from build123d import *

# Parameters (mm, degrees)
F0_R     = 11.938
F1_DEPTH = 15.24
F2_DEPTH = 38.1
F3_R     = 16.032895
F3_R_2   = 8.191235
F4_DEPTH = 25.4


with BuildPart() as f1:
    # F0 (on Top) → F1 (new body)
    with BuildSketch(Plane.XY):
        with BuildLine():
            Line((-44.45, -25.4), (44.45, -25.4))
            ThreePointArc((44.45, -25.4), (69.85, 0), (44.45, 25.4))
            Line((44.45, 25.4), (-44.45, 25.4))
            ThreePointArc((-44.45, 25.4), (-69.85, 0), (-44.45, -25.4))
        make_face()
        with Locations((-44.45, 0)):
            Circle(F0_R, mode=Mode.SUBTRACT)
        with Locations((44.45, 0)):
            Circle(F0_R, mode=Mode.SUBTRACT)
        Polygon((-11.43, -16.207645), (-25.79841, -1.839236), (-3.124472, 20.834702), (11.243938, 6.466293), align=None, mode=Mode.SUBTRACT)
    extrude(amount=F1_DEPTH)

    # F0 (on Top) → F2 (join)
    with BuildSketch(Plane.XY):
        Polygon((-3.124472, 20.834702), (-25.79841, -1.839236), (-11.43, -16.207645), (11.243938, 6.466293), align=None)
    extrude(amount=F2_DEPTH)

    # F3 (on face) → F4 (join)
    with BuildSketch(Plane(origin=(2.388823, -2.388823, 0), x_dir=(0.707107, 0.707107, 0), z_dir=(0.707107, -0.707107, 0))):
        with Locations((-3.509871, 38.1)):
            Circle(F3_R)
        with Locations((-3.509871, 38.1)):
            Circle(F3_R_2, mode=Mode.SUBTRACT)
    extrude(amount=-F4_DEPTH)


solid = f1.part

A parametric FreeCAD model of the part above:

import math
import FreeCAD as App
import Part
import Sketcher
from FreeCAD import Vector
Q = App.Units.Quantity

doc = App.newDocument("Part")
body = doc.addObject("PartDesign::Body", "Body")

# Sketch on XY plane
sketch1 = body.newObject("Sketcher::SketchObject", "Sketch")
sketch1.AttachmentSupport = (doc.getObject("XY_Plane"), [""])
sketch1.MapMode = "FlatFace"
sketch1.addGeometry([
    Part.LineSegment(Vector(-44, -25, 0), Vector(44, -25, 0)),  # 0
    Part.ArcOfCircle(Part.Circle(Vector(44, 0, 0), Vector(0, 0, 1), 25), math.radians(-90), math.radians(90)),  # 1
    Part.LineSegment(Vector(44, 25, 0), Vector(-44, 25, 0)),  # 2
    Part.ArcOfCircle(Part.Circle(Vector(-44, 0, 0), Vector(0, 0, 1), 25), math.radians(90), math.radians(270)),  # 3
    Part.Circle(Vector(-44, 0, 0), Vector(0, 0, 1), 12),  # 4
    Part.Circle(Vector(44, 0, 0), Vector(0, 0, 1), 12),  # 5
    Part.LineSegment(Vector(11, 6, 0), Vector(-11, -16, 0)),  # 6
    Part.LineSegment(Vector(-11, -16, 0), Vector(-26, -2, 0)),  # 7
    Part.LineSegment(Vector(-26, -2, 0), Vector(-3, 21, 0)),  # 8
    Part.LineSegment(Vector(-3, 21, 0), Vector(11, 6, 0)),  # 9
], False)
sketch1.addConstraint([
    Sketcher.Constraint("Tangent", 0, 2, 1, 1),
    Sketcher.Constraint("Tangent", 1, 2, 2, 1),
    Sketcher.Constraint("Tangent", 2, 2, 3, 1),
    Sketcher.Constraint("Tangent", 3, 2, 0, 1),
    Sketcher.Constraint("Coincident", 6, 2, 7, 1),
    Sketcher.Constraint("Coincident", 7, 2, 8, 1),
    Sketcher.Constraint("Coincident", 8, 2, 9, 1),
    Sketcher.Constraint("Coincident", 9, 2, 6, 1),
    Sketcher.Constraint("Horizontal", 0),
    Sketcher.Constraint("Horizontal", 2),
    Sketcher.Constraint("Coincident", 4, 3, 3, 3),
    Sketcher.Constraint("Coincident", 5, 3, 1, 3),
    Sketcher.Constraint("Equal", 4, 5),
    Sketcher.Constraint("Symmetric", 1, 3, 3, 3, -1, 1),
    Sketcher.Constraint("Perpendicular", 6, 7),
    Sketcher.Constraint("Perpendicular", 7, 8),
    Sketcher.Constraint("Perpendicular", 8, 9),
    Sketcher.Constraint("Radius", 1, Q("1 in")),
    Sketcher.Constraint("Diameter", 4, Q("0.94 in")),
    Sketcher.Constraint("DistanceX", 0, 1, 0, 2, Q("3.5 in")),
    Sketcher.Constraint("Angle", 6, Q("-135 deg")),
    Sketcher.Constraint("Distance", 7, Q("0.8 in")),
    Sketcher.Constraint("DistanceX", 3, 2, 6, 2, Q("1.3 in")),
    Sketcher.Constraint("DistanceY", -1, 1, 8, 2, 20.834702),
    Sketcher.Constraint("Distance", 6, 32.065791),
])
pad1 = body.newObject("PartDesign::Pad", "Pad")
pad1.Profile = sketch1
pad1.Length = Q("0.6 in")

# Sketch on XY plane
sketch2 = body.newObject("Sketcher::SketchObject", "Sketch001")
sketch2.AttachmentSupport = (doc.getObject("XY_Plane"), [""])
sketch2.MapMode = "FlatFace"
sketch2.addGeometry([
    Part.LineSegment(Vector(-3, 21, 0), Vector(-26, -2, 0)),
    Part.LineSegment(Vector(-26, -2, 0), Vector(-11, -16, 0)),
    Part.LineSegment(Vector(-11, -16, 0), Vector(11, 6, 0)),
    Part.LineSegment(Vector(11, 6, 0), Vector(-3, 21, 0)),
], False)
sketch2.addConstraint([
    Sketcher.Constraint("Coincident", 0, 2, 1, 1),
    Sketcher.Constraint("Coincident", 1, 2, 2, 1),
    Sketcher.Constraint("Coincident", 2, 2, 3, 1),
    Sketcher.Constraint("Coincident", 3, 2, 0, 1),
    Sketcher.Constraint("Perpendicular", 0, 1),
    Sketcher.Constraint("Perpendicular", 1, 2),
    Sketcher.Constraint("Perpendicular", 2, 3),
    Sketcher.Constraint("Angle", 0, Q("-135 deg")),
    Sketcher.Constraint("Distance", 1, Q("0.8 in")),
    Sketcher.Constraint("DistanceX", 1, 2, -1, 1, Q("0.45 in")),
    Sketcher.Constraint("DistanceY", -1, 1, 3, 2, 20.834702),
    Sketcher.Constraint("Distance", 0, 32.065791),
])
pad2 = body.newObject("PartDesign::Pad", "Pad001")
pad2.Profile = sketch2
pad2.Length = Q("1.5 in")

# Sketch on an angled plane
sketch3 = body.newObject("Sketcher::SketchObject", "Sketch002")
sketch3.Placement = App.Placement(Vector(2.388823, -2.388823, 0), App.Rotation(Vector(0.707106781, 0.707106781, 0), Vector(0, 0, 0.999999999), Vector(0.707106781, -0.707106781, 0), "ZXY"))
sketch3.addGeometry([
    Part.Circle(Vector(-4, 38, 0), Vector(0, 0, 1), 16),
    Part.Circle(Vector(-4, 38, 0), Vector(0, 0, 1), 8),
], False)
sketch3.addConstraint([
    Sketcher.Constraint("Coincident", 1, 3, 0, 3),
    Sketcher.Constraint("DistanceY", -1, 1, 0, 3, Q("1.5 in")),
    Sketcher.Constraint("Diameter", 0, 32.06579),
    Sketcher.Constraint("Diameter", 1, 16.38247),
    Sketcher.Constraint("DistanceX", 0, 3, -1, 1, 3.509871),
])
pad3 = body.newObject("PartDesign::Pad", "Pad002")
pad3.Profile = sketch3
pad3.Length = Q("1 in")
pad3.Reversed = True

doc.recompute()
